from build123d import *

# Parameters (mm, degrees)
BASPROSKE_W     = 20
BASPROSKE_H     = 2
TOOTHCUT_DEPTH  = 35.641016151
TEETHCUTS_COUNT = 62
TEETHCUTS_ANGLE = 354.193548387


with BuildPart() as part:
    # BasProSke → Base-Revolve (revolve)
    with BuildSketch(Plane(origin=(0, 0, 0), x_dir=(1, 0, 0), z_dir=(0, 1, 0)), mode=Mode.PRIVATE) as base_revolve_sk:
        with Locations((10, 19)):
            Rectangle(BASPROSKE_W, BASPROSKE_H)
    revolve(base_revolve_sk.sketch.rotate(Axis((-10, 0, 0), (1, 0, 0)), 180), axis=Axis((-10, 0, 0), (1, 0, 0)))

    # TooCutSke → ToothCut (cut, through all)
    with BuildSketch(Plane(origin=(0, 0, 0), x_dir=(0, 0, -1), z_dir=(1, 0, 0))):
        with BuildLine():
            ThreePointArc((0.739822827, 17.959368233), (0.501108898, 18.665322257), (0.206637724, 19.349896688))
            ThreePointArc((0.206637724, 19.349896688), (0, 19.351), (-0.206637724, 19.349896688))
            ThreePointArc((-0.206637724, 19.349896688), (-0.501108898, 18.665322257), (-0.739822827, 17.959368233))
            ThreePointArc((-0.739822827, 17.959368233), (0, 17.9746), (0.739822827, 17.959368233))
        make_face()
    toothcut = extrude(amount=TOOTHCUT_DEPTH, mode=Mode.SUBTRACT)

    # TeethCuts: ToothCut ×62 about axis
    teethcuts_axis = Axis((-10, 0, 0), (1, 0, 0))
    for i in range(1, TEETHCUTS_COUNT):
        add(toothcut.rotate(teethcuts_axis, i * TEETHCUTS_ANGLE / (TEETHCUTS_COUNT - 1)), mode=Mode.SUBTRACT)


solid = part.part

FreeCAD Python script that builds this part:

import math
import FreeCAD as App
import Part
import Sketcher

V = App.Vector


def add_polygon(sketch, points):
    """Adds a closed chain of lines whose ends are joined by coincident constraints."""
    first, n = sketch.GeometryCount, len(points)
    for a, b in zip(points, points[1:] + points[:1]):
        sketch.addGeometry(Part.LineSegment(App.Vector(*a, 0), App.Vector(*b, 0)), False)
    for i in range(n):
        sketch.addConstraint(Sketcher.Constraint("Coincident", first + i, 2, first + (i + 1) % n, 1))

doc = App.newDocument("Part")
body = doc.addObject("PartDesign::Body", "Body")

# Sketch on XZ plane
sketch1 = doc.addObject("Sketcher::SketchObject", "Sketch")
body.addObject(sketch1)
sketch1.AttachmentSupport = (doc.XZ_Plane, [""])
sketch1.MapMode = "FlatFace"
add_polygon(sketch1, [(0, -20), (0, -18), (20, -18), (20, -20)])  # lines 0-3
sketch1.addConstraint([
    Sketcher.Constraint("Vertical", 0),
    Sketcher.Constraint("Horizontal", 1),
    Sketcher.Constraint("Vertical", 2),
    Sketcher.Constraint("Horizontal", 3),
    Sketcher.Constraint("PointOnObject", 0, 2, -2),
    Sketcher.Constraint("DistanceX", 1, 1, 1, 2, 20.0),
    Sketcher.Constraint("DistanceY", 0, 1, 0, 2, 2.0),
    Sketcher.Constraint("DistanceY", 0, 2, -1, 1, 18.0),
])
revolution = doc.addObject("PartDesign::Revolution", "Revolution")
body.addObject(revolution)
revolution.Profile = sketch1
revolution.ReferenceAxis = (sketch1, ["H_Axis"])
revolution.Angle = 360

# Sketch on YZ plane
sketch2 = doc.addObject("Sketcher::SketchObject", "Sketch001")
body.addObject(sketch2)
sketch2.AttachmentSupport = (doc.YZ_Plane, [""])
sketch2.MapMode = "FlatFace"
sketch2.addGeometry([
    Part.ArcOfCircle(Part.Circle(V(15.335705, 8.182418, 0), V(0, 0, 1), 9.3), math.radians(-73.613565), math.radians(-64.428728)),
    Part.ArcOfCircle(Part.Circle(V(0.000007, 0, 0), V(0, 0, 1), 19.350993), math.radians(-0.611839), math.radians(0.611839)),
    Part.ArcOfCircle(Part.Circle(V(15.335705, -8.182418, 0), V(0, 0, 1), 9.3), math.radians(64.428728), math.radians(73.613565)),
    Part.ArcOfCircle(Part.Circle(V(0.000001, 0, 0), V(0, 0, 1), 17.974599), math.radians(-2.358923), math.radians(2.358923)),
], False)
sketch2.addConstraint([
    Sketcher.Constraint("Coincident", 0, 2, 1, 1),
    Sketcher.Constraint("Coincident", 1, 2, 2, 1),
    Sketcher.Constraint("Coincident", 2, 2, 3, 2),
    Sketcher.Constraint("Coincident", 3, 1, 0, 1),
    Sketcher.Constraint("Coincident", 1, 3, -1, 1),
    Sketcher.Constraint("Coincident", 3, 3, -1, 1),
    Sketcher.Constraint("Equal", 0, 2),
    Sketcher.Constraint("Symmetric", 0, 3, 2, 3, -1),
    Sketcher.Constraint("Radius", 0, 9.3),
    Sketcher.Constraint("Radius", 3, 17.974599),
    Sketcher.Constraint("Radius", 1, 19.350993),
    Sketcher.Constraint("DistanceX", 1, 3, 0, 3, 15.335698),
    Sketcher.Constraint("DistanceY", -1, 1, 0, 3, 8.182418),
])
pocket1 = doc.addObject("PartDesign::Pocket", "Pocket")
body.addObject(pocket1)
pocket1.Profile = sketch2
pocket1.Type = "ThroughAll"
pocket1.Reversed = True
doc.recompute()

polarpattern = doc.addObject("PartDesign::PolarPattern", "PolarPattern")
body.addObject(polarpattern)
polarpattern.Originals = [pocket1]
polarpattern.Axis = (doc.X_Axis, [""])
polarpattern.Angle = 360
polarpattern.Occurrences = 62
body.Tip = polarpattern

doc.recompute()
